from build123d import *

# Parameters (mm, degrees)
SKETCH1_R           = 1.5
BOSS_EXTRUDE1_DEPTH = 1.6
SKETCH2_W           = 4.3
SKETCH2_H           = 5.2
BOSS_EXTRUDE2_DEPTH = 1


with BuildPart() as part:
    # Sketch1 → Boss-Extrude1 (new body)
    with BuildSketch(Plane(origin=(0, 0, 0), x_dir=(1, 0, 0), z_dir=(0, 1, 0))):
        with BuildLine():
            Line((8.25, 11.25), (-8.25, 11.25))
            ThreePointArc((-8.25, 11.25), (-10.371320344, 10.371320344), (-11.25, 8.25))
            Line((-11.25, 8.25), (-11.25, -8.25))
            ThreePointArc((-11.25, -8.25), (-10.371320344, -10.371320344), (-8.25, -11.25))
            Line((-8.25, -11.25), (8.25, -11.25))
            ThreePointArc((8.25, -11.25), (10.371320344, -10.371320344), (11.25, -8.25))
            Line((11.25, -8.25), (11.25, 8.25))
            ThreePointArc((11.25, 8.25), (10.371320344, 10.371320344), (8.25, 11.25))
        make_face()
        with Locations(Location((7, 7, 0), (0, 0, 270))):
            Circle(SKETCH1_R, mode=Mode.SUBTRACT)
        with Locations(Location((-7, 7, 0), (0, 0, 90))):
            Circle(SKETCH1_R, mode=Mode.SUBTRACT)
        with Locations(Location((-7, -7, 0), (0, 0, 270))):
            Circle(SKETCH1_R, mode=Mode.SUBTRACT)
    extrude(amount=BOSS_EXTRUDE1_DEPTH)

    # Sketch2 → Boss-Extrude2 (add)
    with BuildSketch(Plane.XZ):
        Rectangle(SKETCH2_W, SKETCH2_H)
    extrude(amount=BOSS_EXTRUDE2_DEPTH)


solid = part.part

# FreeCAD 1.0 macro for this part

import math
import FreeCAD as App
import Part
import Sketcher

V = App.Vector


def add_polygon(sketch, points):
    """Adds a closed chain of lines whose ends are joined by coincident constraints."""
    first, n = sketch.GeometryCount, len(points)
    for a, b in zip(points, points[1:] + points[:1]):
        sketch.addGeometry(Part.LineSegment(App.Vector(*a, 0), App.Vector(*b, 0)), False)
    for i in range(n):
        sketch.addConstraint(Sketcher.Constraint("Coincident", first + i, 2, first + (i + 1) % n, 1))

doc = App.newDocument("Part")
body = doc.addObject("PartDesign::Body", "Body")

# Sketch on XZ plane
sketch1 = doc.addObject("Sketcher::SketchObject", "Sketch")
body.addObject(sketch1)
sketch1.AttachmentSupport = (doc.XZ_Plane, [""])
sketch1.MapMode = "FlatFace"
sketch1.addGeometry(Part.LineSegment(V(8.2, -11.2, 0), V(-8.2, -11.2, 0)), False)
sketch1.addGeometry(Part.ArcOfCircle(Part.Circle(V(-8.3, -8.3, 0), V(0, 0, 1), 3), math.radians(180), math.radians(270)), False)
sketch1.addGeometry(Part.LineSegment(V(-11.2, -8.2, 0), V(-11.2, 8.2, 0)), False)
sketch1.addGeometry(Part.ArcOfCircle(Part.Circle(V(-8.3, 8.3, 0), V(0, 0, 1), 3), math.radians(90), math.radians(180)), False)
sketch1.addGeometry(Part.LineSegment(V(-8.2, 11.2, 0), V(8.2, 11.2, 0)), False)
sketch1.addGeometry(Part.ArcOfCircle(Part.Circle(V(8.3, 8.3, 0), V(0, 0, 1), 3), math.radians(0), math.radians(90)), False)
sketch1.addGeometry(Part.LineSegment(V(11.2, 8.2, 0), V(11.2, -8.2, 0)), False)
sketch1.addGeometry(Part.ArcOfCircle(Part.Circle(V(8.3, -8.3, 0), V(0, 0, 1), 3), math.radians(-90), math.radians(0)), False)
sketch1.addGeometry(Part.Circle(V(-7, 7, 0), V(0, 0, 1), 1.5), False)
sketch1.addGeometry(Part.Circle(V(-7, -7, 0), V(0, 0, 1), 1.5), False)
sketch1.addGeometry(Part.Circle(V(7, -7, 0), V(0, 0, 1), 1.5), False)
sketch1.addConstraint(Sketcher.Constraint("Tangent", 0, 2, 1, 2))
sketch1.addConstraint(Sketcher.Constraint("Tangent", 1, 1, 2, 1))
sketch1.addConstraint(Sketcher.Constraint("Tangent", 2, 2, 3, 2))
sketch1.addConstraint(Sketcher.Constraint("Tangent", 3, 1, 4, 1))
sketch1.addConstraint(Sketcher.Constraint("Tangent", 4, 2, 5, 2))
sketch1.addConstraint(Sketcher.Constraint("Tangent", 5, 1, 6, 1))
sketch1.addConstraint(Sketcher.Constraint("Tangent", 6, 2, 7, 2))
sketch1.addConstraint(Sketcher.Constraint("Tangent", 7, 1, 0, 1))
sketch1.addConstraint(Sketcher.Constraint("Horizontal", 0))
sketch1.addConstraint(Sketcher.Constraint("Vertical", 2))
sketch1.addConstraint(Sketcher.Constraint("Horizontal", 4))
sketch1.addConstraint(Sketcher.Constraint("Vertical", 6))
sketch1.addConstraint(Sketcher.Constraint("Equal", 1, 3))
sketch1.addConstraint(Sketcher.Constraint("Equal", 3, 5))
sketch1.addConstraint(Sketcher.Constraint("Equal", 5, 7))
sketch1.addConstraint(Sketcher.Constraint("Equal", 8, 9))
sketch1.addConstraint(Sketcher.Constraint("Equal", 9, 10))
sketch1.addConstraint(Sketcher.Constraint("Symmetric", 1, 3, 5, 3, -1, 1))
sketch1.addConstraint(Sketcher.Constraint("Symmetric", 8, 3, 10, 3, -1, 1))
sketch1.addConstraint(Sketcher.Constraint("Symmetric", 9, 3, 10, 3, -2))
sketch1.addConstraint(Sketcher.Constraint("Equal", 4, 2))
sketch1.addConstraint(Sketcher.Constraint("Diameter", 8, 3.0))
sketch1.addConstraint(Sketcher.Constraint("Radius", 1, 3.0))
sketch1.addConstraint(Sketcher.Constraint("DistanceX", 0, 2, 0, 1, 16.5))
sketch1.addConstraint(Sketcher.Constraint("DistanceX", 8, 3, -1, 1, 7.0))
sketch1.addConstraint(Sketcher.Constraint("DistanceY", -1, 1, 8, 3, 7.0))
pad1 = doc.addObject("PartDesign::Pad", "Pad")
body.addObject(pad1)
pad1.Profile = sketch1
pad1.Length = 1.6
pad1.Reversed = True

# Sketch on XZ plane
sketch2 = doc.addObject("Sketcher::SketchObject", "Sketch001")
body.addObject(sketch2)
sketch2.AttachmentSupport = (doc.XZ_Plane, [""])
sketch2.MapMode = "FlatFace"
add_polygon(sketch2, [(-2.1, 2.6), (-2.1, -2.6), (2.1, -2.6), (2.1, 2.6)])  # lines 0-3
sketch2.addConstraint(Sketcher.Constraint("Vertical", 0))
sketch2.addConstraint(Sketcher.Constraint("Horizontal", 1))
sketch2.addConstraint(Sketcher.Constraint("Vertical", 2))
sketch2.addConstraint(Sketcher.Constraint("Horizontal", 3))
sketch2.addConstraint(Sketcher.Constraint("Symmetric", 0, 2, 2, 2, -1, 1))
sketch2.addConstraint(Sketcher.Constraint("DistanceX", 1, 1, 1, 2, 4.3))
sketch2.addConstraint(Sketcher.Constraint("DistanceY", 0, 2, 0, 1, 5.2))
pad2 = doc.addObject("PartDesign::Pad", "Pad001")
body.addObject(pad2)
pad2.Profile = sketch2
pad2.Length = 1

doc.recompute()
